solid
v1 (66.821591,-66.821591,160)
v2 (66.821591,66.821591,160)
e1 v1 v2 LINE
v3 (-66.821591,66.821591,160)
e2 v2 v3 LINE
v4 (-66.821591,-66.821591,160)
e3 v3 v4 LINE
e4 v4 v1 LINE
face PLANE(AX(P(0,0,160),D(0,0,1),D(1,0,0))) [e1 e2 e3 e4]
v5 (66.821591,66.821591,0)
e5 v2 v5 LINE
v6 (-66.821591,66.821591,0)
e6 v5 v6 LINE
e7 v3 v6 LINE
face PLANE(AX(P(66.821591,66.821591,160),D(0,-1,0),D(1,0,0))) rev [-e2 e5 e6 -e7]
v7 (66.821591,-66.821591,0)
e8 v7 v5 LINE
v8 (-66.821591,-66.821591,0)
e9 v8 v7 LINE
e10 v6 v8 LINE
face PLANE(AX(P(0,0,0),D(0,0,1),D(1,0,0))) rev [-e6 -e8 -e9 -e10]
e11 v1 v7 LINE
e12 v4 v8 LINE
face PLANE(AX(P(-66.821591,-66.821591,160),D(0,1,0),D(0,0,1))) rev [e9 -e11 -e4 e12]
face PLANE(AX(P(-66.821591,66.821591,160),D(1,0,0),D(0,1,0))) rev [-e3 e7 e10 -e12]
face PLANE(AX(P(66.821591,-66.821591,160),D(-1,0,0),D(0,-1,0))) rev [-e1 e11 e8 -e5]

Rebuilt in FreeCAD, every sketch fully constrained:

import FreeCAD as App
import Part
import Sketcher

doc = App.newDocument("Part")
params = doc.addObject("Spreadsheet::Sheet", "Params")
for row, (alias, value) in enumerate([
    ("pad1_length", "160 mm"),
], start=1):
    params.set(f"A{row}", alias)
    params.set(f"B{row}", "=" + value)
    params.setAlias(f"B{row}", alias)

body = doc.addObject("PartDesign::Body", "Body")

# Sketch on XY plane
sketch1 = body.newObject("Sketcher::SketchObject", "Sketch")
sketch1.AttachmentSupport = (doc.getObject("XY_Plane"), [""])
sketch1.MapMode = "FlatFace"
sketch1.addGeometry([
    Part.LineSegment(App.Vector(-66.821591, 66.821591, 0), App.Vector(-66.821591, -66.821591, 0)),
    Part.LineSegment(App.Vector(-66.821591, -66.821591, 0), App.Vector(66.821591, -66.821591, 0)),
    Part.LineSegment(App.Vector(66.821591, -66.821591, 0), App.Vector(66.821591, 66.821591, 0)),
    Part.LineSegment(App.Vector(66.821591, 66.821591, 0), App.Vector(-66.821591, 66.821591, 0)),
], False)
sketch1.addConstraint([
    Sketcher.Constraint("Coincident", 0, 2, 1, 1),
    Sketcher.Constraint("Coincident", 1, 2, 2, 1),
    Sketcher.Constraint("Coincident", 2, 2, 3, 1),
    Sketcher.Constraint("Coincident", 3, 2, 0, 1),
    Sketcher.Constraint("Vertical", 0),
    Sketcher.Constraint("Horizontal", 1),
    Sketcher.Constraint("Vertical", 2),
    Sketcher.Constraint("Horizontal", 3),
    Sketcher.Constraint("Symmetric", 0, 2, 2, 2, -1, 1),
    Sketcher.Constraint("Equal", 3, 0),
    Sketcher.Constraint("DistanceX", 1, 1, 1, 2, 133.643182),
])
pad1 = body.newObject("PartDesign::Pad", "Pad")
pad1.Profile = sketch1
pad1.setExpression("Length", "Params.pad1_length")

doc.recompute()
